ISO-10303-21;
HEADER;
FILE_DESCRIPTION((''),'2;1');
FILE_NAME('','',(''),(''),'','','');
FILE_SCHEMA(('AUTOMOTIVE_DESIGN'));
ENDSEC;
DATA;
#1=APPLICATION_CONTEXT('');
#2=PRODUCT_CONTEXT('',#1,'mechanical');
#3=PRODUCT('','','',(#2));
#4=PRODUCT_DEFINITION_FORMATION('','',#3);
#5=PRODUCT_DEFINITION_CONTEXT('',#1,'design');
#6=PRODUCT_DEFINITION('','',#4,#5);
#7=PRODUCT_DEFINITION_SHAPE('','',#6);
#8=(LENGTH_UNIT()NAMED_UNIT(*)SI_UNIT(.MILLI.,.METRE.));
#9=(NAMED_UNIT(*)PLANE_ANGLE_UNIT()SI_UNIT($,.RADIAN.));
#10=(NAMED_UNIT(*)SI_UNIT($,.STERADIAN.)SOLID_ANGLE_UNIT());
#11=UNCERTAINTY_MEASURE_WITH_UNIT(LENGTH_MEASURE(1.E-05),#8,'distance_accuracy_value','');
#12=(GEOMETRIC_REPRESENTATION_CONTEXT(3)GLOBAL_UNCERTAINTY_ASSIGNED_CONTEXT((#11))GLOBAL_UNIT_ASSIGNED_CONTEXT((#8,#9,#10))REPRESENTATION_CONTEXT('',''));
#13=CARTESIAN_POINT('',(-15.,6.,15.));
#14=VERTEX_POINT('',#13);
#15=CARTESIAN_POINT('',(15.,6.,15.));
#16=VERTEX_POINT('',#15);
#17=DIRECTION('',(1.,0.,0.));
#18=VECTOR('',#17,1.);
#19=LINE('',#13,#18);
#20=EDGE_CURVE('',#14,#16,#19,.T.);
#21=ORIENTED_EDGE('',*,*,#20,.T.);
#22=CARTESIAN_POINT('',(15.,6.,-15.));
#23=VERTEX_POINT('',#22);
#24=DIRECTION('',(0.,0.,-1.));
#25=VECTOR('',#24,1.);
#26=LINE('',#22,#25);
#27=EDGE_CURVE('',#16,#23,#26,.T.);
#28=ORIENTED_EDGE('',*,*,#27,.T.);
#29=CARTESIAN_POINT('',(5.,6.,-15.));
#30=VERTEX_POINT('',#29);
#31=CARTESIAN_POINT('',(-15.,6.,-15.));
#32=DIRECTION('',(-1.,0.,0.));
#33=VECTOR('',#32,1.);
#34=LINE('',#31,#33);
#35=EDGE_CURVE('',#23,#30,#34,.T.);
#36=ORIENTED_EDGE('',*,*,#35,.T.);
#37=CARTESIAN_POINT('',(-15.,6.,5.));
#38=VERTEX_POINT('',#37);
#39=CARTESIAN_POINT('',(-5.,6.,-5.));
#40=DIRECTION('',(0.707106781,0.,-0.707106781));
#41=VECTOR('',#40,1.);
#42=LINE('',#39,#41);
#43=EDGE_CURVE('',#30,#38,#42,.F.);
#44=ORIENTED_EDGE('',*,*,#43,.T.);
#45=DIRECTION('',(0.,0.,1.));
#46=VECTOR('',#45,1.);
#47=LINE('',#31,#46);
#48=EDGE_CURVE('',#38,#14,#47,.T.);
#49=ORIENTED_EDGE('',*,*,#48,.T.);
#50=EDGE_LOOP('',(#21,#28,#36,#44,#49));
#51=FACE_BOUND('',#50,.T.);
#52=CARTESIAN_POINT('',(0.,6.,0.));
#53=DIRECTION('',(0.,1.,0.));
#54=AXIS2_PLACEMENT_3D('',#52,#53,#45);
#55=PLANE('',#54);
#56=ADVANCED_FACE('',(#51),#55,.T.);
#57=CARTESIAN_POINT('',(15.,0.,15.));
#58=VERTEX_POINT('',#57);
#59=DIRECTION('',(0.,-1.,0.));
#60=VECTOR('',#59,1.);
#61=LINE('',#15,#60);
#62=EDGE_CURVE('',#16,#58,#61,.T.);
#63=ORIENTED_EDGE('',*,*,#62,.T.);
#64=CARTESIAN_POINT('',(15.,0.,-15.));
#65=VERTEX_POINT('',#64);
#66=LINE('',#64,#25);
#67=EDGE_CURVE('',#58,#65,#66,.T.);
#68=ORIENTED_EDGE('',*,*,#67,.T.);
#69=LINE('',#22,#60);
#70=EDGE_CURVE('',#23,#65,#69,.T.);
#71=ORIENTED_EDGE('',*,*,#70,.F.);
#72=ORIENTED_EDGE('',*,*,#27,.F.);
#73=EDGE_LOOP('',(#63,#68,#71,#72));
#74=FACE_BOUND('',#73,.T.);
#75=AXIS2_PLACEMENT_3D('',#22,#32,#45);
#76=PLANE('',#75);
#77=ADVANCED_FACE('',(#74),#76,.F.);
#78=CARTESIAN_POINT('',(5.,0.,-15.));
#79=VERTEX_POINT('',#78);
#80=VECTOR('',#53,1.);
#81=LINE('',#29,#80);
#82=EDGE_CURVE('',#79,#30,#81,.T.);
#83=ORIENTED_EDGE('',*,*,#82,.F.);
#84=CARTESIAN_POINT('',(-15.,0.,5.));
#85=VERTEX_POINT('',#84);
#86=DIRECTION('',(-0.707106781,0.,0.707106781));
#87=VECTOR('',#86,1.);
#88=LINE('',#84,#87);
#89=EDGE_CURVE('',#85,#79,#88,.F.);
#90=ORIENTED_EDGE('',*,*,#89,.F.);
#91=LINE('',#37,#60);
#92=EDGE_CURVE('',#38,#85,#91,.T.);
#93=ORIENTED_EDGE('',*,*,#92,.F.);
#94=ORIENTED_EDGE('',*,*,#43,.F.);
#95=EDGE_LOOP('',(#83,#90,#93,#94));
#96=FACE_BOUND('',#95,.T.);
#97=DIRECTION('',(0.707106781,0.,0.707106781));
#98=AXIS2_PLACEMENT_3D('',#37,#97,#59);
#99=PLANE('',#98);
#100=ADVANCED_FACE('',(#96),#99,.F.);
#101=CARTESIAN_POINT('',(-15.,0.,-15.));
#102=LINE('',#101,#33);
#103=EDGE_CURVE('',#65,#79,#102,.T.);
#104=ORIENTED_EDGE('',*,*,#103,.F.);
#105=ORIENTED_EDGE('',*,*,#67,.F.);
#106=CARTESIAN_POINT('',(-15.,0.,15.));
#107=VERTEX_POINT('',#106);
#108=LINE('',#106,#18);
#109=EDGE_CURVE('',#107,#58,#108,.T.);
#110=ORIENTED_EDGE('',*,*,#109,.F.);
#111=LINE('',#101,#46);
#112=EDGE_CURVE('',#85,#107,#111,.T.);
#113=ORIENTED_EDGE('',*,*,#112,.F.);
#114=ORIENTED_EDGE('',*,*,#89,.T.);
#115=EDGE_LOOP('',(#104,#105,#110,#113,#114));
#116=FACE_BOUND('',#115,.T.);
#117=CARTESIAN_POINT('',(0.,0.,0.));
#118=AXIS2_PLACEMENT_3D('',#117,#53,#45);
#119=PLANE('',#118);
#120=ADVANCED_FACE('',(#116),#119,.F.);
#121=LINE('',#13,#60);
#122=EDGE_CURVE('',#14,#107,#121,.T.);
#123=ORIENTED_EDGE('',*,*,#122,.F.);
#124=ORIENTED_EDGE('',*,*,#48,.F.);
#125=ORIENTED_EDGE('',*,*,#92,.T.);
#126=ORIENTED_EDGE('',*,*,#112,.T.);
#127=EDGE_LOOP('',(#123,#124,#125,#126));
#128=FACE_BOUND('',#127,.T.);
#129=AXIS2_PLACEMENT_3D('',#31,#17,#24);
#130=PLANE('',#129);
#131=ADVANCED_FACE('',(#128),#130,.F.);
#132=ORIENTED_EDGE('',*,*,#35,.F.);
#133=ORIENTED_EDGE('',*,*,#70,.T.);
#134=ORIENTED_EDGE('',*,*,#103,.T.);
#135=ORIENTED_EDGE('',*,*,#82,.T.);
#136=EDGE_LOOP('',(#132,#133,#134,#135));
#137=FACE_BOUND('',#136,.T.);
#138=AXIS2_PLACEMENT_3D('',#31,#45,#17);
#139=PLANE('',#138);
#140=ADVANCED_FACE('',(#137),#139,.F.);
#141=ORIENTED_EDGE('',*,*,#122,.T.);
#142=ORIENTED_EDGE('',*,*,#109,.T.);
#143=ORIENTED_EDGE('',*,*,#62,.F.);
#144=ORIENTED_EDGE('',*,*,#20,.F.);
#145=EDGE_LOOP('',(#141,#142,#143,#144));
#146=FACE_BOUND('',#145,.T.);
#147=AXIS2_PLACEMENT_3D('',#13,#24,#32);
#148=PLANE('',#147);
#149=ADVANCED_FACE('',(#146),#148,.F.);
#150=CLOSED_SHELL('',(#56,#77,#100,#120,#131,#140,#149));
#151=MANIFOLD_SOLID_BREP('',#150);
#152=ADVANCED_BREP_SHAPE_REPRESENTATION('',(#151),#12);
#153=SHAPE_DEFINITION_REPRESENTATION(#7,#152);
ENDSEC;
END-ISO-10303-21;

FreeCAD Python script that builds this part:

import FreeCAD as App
import Part
import Sketcher
from FreeCAD import Vector
Q = App.Units.Quantity


def edges_at(feature, points):
    """Names of the edges that pass closest to the given points."""
    edges = feature.Shape.Edges
    near = lambda p: min(range(len(edges)), key=lambda i: edges[i].distToShape(Part.Vertex(*p))[0])
    return sorted({f"Edge{near(p) + 1}" for p in points})


def add_polygon(sketch, points):
    """Adds a closed chain of lines whose ends are joined by coincident constraints."""
    first, n = sketch.GeometryCount, len(points)
    for a, b in zip(points, points[1:] + points[:1]):
        sketch.addGeometry(Part.LineSegment(App.Vector(*a, 0), App.Vector(*b, 0)), False)
    for i in range(n):
        sketch.addConstraint(Sketcher.Constraint("Coincident", first + i, 2, first + (i + 1) % n, 1))

doc = App.newDocument("Part")
body = doc.addObject("PartDesign::Body", "Body")

# Sketch on XZ plane
sketch1 = doc.addObject("Sketcher::SketchObject", "Sketch")
body.addObject(sketch1)
sketch1.AttachmentSupport = (doc.XZ_Plane, [""])
sketch1.MapMode = "FlatFace"
add_polygon(sketch1, [(-15, -15), (-15, 15), (15, 15), (15, -15)])  # lines 0-3
sketch1.addConstraint([
    Sketcher.Constraint("Vertical", 0),
    Sketcher.Constraint("Horizontal", 1),
    Sketcher.Constraint("Vertical", 2),
    Sketcher.Constraint("Horizontal", 3),
    Sketcher.Constraint("Symmetric", 0, 2, 2, 2, -1, 1),
    Sketcher.Constraint("Equal", 3, 0),
    Sketcher.Constraint("DistanceX", 1, 1, 1, 2, Q("30 mm")),
])
pad1 = doc.addObject("PartDesign::Pad", "Pad")
body.addObject(pad1)
pad1.Profile = sketch1
pad1.Length = 6
pad1.Reversed = True
doc.recompute()

chamfer = doc.addObject("PartDesign::Chamfer", "Chamfer")
body.addObject(chamfer)
chamfer.Base = (pad1, edges_at(pad1, [(-15, 3, -15)]))
chamfer.Size = 20

doc.recompute()
